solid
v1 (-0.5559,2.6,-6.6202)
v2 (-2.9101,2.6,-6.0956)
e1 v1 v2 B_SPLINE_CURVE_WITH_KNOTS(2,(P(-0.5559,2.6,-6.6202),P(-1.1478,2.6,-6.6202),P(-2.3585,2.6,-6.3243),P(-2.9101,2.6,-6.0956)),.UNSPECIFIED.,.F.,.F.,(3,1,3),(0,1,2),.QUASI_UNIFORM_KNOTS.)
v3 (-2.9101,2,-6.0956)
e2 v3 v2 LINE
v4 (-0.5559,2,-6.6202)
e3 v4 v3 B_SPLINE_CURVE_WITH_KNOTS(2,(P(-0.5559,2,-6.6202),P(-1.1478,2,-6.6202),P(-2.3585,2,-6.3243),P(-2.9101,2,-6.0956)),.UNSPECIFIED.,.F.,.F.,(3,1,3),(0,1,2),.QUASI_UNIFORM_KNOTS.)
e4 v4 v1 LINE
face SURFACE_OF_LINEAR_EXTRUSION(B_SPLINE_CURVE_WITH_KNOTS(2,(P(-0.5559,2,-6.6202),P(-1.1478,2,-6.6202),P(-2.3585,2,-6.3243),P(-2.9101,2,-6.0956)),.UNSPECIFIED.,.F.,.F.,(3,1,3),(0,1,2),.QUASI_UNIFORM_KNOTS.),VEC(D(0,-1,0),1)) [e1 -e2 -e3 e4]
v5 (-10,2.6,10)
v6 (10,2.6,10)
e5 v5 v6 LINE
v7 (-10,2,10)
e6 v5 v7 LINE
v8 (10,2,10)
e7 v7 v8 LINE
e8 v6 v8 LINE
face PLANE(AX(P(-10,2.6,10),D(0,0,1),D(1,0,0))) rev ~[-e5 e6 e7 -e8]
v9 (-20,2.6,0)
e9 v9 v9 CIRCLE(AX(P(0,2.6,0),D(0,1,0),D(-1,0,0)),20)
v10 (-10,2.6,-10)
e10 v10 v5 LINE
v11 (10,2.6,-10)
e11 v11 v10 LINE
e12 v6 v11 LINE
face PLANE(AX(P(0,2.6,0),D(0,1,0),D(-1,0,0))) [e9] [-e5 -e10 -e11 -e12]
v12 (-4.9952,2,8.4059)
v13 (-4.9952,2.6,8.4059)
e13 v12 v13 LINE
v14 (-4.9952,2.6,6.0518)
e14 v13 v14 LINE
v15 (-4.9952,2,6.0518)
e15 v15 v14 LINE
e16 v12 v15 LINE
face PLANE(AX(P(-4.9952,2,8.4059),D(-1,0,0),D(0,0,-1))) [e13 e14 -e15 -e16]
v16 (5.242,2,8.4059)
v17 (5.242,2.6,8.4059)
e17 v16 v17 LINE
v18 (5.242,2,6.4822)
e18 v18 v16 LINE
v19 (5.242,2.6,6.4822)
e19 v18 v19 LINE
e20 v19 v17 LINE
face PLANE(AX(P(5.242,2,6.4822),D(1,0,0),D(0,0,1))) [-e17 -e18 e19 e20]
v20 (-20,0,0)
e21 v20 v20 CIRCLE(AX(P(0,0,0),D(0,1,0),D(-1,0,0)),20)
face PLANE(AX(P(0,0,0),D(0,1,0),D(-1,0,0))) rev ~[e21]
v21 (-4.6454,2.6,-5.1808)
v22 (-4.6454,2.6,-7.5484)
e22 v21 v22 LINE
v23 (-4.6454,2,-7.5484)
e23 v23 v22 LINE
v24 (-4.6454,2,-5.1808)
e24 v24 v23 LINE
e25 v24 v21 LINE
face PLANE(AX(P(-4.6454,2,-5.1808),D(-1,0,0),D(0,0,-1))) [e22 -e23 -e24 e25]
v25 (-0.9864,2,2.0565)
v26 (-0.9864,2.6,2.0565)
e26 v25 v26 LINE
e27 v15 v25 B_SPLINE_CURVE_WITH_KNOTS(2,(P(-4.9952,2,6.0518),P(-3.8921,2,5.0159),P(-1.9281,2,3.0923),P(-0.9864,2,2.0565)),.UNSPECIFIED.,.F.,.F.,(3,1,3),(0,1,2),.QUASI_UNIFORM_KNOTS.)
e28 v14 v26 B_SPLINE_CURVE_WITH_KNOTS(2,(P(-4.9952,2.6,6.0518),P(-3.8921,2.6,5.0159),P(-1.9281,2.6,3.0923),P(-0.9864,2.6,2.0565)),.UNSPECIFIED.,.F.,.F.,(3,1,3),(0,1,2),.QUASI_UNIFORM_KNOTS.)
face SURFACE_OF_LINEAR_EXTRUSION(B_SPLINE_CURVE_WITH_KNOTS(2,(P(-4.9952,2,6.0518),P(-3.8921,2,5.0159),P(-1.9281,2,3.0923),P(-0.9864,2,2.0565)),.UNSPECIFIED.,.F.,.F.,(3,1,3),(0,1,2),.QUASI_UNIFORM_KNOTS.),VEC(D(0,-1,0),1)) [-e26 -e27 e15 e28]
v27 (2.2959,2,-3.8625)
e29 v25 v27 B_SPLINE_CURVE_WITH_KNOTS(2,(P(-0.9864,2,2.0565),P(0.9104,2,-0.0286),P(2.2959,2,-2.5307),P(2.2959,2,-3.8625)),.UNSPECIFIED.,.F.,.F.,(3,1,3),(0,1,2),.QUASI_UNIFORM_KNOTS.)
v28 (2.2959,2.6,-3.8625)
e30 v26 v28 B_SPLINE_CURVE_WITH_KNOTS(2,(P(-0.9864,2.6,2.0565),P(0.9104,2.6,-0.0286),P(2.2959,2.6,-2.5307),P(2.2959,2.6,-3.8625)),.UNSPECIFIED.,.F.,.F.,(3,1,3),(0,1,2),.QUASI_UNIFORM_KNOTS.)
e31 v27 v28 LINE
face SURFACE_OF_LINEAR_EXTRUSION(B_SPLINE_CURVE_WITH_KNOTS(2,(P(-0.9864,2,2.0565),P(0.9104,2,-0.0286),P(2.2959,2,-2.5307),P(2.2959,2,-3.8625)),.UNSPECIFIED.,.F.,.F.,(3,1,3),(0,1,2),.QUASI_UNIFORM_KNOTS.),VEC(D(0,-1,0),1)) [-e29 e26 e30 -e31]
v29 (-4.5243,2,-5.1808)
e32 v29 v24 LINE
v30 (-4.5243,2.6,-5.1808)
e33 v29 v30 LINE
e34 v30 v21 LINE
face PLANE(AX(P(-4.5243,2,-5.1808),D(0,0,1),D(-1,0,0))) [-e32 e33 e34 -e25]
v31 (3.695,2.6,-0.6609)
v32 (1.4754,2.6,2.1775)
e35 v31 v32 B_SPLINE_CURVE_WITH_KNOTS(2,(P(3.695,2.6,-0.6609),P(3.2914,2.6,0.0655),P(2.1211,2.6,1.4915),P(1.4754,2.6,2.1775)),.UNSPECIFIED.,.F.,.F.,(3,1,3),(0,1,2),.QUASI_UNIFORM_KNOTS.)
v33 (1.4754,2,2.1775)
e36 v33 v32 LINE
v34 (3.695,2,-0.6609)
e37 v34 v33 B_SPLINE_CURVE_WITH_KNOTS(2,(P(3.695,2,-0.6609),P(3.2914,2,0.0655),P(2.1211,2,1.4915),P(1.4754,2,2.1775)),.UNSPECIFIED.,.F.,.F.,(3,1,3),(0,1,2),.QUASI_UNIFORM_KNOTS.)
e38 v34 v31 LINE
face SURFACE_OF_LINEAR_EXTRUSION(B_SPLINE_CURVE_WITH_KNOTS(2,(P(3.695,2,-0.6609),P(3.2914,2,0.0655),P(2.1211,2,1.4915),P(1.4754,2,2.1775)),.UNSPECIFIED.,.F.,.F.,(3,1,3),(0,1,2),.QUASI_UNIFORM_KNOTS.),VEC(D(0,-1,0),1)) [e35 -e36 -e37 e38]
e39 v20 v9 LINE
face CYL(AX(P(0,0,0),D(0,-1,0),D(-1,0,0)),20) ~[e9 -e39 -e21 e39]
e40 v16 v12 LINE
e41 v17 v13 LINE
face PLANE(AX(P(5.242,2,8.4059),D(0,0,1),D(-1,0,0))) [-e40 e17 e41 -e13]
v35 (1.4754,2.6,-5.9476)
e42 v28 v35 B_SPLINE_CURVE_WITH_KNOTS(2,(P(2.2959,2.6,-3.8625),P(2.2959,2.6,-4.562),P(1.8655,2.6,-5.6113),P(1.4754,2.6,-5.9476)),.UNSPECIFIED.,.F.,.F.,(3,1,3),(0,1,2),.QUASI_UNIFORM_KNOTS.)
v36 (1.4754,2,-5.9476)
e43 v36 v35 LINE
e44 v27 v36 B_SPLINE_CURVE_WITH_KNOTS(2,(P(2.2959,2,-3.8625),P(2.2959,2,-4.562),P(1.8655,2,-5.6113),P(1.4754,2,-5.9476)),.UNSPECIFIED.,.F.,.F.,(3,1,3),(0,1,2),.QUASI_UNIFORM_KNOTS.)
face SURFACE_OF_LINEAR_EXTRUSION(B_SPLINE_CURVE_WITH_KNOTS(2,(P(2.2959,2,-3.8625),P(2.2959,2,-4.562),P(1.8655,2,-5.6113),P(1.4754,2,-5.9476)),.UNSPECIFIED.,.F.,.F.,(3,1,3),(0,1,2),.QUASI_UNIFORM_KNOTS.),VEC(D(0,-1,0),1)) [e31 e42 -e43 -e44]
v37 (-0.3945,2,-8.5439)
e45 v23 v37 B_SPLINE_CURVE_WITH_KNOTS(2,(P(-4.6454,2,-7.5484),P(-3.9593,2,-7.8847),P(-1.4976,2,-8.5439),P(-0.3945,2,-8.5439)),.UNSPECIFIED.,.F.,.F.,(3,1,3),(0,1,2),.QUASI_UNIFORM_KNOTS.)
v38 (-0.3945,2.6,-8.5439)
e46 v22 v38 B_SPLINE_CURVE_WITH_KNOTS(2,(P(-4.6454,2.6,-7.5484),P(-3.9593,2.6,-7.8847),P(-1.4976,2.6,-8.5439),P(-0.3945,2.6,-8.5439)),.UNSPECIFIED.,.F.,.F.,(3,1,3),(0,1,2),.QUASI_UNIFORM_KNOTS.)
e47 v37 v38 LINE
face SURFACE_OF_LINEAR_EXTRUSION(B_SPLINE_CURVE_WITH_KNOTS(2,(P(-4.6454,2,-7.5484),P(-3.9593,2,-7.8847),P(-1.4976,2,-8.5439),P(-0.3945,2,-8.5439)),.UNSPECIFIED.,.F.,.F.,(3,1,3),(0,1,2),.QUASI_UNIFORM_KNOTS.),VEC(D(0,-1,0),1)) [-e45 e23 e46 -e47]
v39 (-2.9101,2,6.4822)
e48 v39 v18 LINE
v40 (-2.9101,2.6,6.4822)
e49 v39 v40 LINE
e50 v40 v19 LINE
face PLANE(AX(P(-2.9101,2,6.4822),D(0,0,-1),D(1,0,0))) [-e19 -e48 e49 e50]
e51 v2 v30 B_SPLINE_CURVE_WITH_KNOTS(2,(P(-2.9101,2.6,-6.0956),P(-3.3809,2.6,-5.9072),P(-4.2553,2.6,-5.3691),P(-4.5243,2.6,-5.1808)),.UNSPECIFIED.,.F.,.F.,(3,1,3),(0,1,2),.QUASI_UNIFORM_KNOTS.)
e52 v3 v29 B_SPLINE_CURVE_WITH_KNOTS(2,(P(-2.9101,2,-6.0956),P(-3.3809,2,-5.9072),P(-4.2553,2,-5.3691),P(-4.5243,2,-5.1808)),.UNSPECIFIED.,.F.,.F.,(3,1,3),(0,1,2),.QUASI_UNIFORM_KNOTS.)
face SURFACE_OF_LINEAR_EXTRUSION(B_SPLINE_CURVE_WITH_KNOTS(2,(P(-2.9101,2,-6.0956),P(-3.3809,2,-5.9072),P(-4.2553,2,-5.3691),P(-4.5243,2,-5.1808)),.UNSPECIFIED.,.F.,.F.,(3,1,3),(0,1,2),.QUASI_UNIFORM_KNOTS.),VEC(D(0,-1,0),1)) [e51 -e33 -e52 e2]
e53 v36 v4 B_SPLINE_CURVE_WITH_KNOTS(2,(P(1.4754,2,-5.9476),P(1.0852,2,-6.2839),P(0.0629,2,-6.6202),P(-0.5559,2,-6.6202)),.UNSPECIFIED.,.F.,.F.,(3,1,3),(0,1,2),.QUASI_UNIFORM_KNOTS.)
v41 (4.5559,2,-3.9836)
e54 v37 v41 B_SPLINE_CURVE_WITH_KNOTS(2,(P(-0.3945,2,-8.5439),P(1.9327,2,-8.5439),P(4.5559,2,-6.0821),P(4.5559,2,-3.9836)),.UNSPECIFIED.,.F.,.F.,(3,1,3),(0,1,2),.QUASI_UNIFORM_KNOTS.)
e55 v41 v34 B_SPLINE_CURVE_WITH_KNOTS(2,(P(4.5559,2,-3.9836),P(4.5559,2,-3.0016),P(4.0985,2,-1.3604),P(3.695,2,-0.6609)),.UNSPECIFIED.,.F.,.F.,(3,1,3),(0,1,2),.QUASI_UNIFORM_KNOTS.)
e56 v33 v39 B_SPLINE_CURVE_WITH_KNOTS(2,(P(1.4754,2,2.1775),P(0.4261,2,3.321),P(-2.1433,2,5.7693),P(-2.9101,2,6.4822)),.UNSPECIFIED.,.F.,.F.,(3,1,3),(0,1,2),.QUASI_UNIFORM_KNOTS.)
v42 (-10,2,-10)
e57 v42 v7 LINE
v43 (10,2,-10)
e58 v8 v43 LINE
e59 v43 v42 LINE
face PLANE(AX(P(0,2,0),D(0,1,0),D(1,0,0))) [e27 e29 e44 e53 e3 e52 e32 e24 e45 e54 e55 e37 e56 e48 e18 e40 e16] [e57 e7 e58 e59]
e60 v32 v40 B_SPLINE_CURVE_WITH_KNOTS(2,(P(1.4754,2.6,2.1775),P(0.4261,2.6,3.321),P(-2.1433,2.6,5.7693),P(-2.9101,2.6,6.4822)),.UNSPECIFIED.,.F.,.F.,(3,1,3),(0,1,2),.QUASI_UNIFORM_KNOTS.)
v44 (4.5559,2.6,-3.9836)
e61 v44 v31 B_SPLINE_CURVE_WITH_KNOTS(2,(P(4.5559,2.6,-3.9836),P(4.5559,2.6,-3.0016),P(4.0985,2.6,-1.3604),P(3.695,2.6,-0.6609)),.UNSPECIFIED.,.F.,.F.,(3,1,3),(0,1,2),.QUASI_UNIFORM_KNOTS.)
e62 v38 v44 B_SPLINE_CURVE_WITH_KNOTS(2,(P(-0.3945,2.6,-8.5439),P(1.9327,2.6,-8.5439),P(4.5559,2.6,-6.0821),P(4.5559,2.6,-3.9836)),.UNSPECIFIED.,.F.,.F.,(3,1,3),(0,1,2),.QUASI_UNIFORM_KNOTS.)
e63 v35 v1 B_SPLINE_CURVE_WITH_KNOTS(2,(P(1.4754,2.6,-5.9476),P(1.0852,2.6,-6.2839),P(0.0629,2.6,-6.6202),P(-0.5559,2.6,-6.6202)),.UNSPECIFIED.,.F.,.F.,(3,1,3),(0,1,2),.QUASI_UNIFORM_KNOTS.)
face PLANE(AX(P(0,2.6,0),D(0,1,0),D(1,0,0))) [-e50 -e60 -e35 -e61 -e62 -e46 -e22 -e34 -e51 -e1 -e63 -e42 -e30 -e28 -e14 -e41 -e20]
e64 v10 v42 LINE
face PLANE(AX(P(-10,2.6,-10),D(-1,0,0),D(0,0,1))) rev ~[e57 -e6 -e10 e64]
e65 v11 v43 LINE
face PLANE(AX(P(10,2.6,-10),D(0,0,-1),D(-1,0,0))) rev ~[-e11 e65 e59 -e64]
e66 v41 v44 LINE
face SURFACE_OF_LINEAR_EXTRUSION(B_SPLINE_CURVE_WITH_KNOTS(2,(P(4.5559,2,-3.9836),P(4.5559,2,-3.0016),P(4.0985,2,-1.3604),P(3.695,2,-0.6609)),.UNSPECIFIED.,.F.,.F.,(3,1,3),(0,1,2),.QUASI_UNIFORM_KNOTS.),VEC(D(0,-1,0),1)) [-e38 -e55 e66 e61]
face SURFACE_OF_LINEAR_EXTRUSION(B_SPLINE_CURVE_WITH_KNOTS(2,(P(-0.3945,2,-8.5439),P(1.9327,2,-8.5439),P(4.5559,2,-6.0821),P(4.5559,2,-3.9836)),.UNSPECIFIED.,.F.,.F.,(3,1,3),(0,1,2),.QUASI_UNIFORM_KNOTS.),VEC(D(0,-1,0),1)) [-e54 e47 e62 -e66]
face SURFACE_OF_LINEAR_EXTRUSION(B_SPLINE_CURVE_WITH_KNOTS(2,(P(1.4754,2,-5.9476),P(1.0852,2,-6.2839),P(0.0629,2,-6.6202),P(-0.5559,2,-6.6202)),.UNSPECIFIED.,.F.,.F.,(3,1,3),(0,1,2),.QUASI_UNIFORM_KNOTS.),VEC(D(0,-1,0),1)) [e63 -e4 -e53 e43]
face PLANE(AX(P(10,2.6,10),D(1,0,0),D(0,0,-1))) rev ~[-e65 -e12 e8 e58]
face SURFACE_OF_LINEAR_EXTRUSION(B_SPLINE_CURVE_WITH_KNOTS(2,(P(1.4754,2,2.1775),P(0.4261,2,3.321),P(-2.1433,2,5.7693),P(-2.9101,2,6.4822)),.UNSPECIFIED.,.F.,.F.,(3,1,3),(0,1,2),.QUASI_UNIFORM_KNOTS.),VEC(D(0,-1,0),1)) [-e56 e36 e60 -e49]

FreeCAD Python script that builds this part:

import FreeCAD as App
import Part
import Sketcher
Q = App.Units.Quantity


def add_polygon(sketch, points):
    """Adds a closed chain of lines whose ends are joined by coincident constraints."""
    first, n = sketch.GeometryCount, len(points)
    for a, b in zip(points, points[1:] + points[:1]):
        sketch.addGeometry(Part.LineSegment(App.Vector(*a, 0), App.Vector(*b, 0)), False)
    for i in range(n):
        sketch.addConstraint(Sketcher.Constraint("Coincident", first + i, 2, first + (i + 1) % n, 1))

doc = App.newDocument("Part")
params = doc.addObject("Spreadsheet::Sheet", "Params")
for row, (alias, value) in enumerate([
    ("sketch1_diameter", "40 mm"),
    ("pad1_length", "2.6 mm"),
    ("sketch2_width", "20 mm"),
    ("pocket1_length", "0.6 mm"),
    ("pad2_length", "0.6 mm"),
], start=1):
    params.set(f"A{row}", alias)
    params.set(f"B{row}", "=" + value)
    params.setAlias(f"B{row}", alias)

body = doc.addObject("PartDesign::Body", "Body")

# Sketch on XZ plane
sketch1 = body.newObject("Sketcher::SketchObject", "Sketch")
sketch1.AttachmentSupport = (doc.getObject("XZ_Plane"), [""])
sketch1.MapMode = "FlatFace"
sketch1.addGeometry(Part.Circle(App.Vector(0, 0, 0), App.Vector(0, 0, 1), 20), False)
sketch1.addConstraint(Sketcher.Constraint("Coincident", 0, 3, -1, 1))
sketch1.addConstraint(Sketcher.Constraint("Diameter", 0, Q("40 mm")))
sketch1.setExpression("Constraints[1]", "Params.sketch1_diameter")
pad1 = body.newObject("PartDesign::Pad", "Pad")
pad1.Profile = sketch1
pad1.setExpression("Length", "Params.pad1_length")
pad1.Reversed = True

# Sketch on XZ plane
sketch2 = body.newObject("Sketcher::SketchObject", "Sketch001")
sketch2.AttachmentSupport = (doc.getObject("XZ_Plane"), [""])
sketch2.MapMode = "FlatFace"
sketch2.AttachmentOffset = App.Placement(App.Vector(0, 0, -2.6), App.Rotation())
add_polygon(sketch2, [(-10, -10), (-10, 10), (10, 10), (10, -10)])  # lines 0-3
sketch2.addConstraint(Sketcher.Constraint("Vertical", 0))
sketch2.addConstraint(Sketcher.Constraint("Horizontal", 1))
sketch2.addConstraint(Sketcher.Constraint("Vertical", 2))
sketch2.addConstraint(Sketcher.Constraint("Horizontal", 3))
sketch2.addConstraint(Sketcher.Constraint("Symmetric", 0, 2, 2, 2, -1, 1))
sketch2.addConstraint(Sketcher.Constraint("Equal", 3, 0))
sketch2.addConstraint(Sketcher.Constraint("DistanceX", 1, 1, 1, 2, Q("20 mm")))
sketch2.setExpression("Constraints[10]", "Params.sketch2_width")
pocket1 = body.newObject("PartDesign::Pocket", "Pocket")
pocket1.Profile = sketch2
pocket1.setExpression("Length", "Params.pocket1_length")
pocket1.Reversed = True

# Sketch on XZ plane
sketch3 = body.newObject("Sketcher::SketchObject", "Sketch002")
sketch3.AttachmentSupport = (doc.getObject("XZ_Plane"), [""])
sketch3.MapMode = "FlatFace"
sketch3.AttachmentOffset = App.Placement(App.Vector(0, 0, -2), App.Rotation())
sketch3.addGeometry(Part.LineSegment(App.Vector(-4.9952, 8.4059, 0), App.Vector(5.242, 8.4059, 0)), False)
sketch3.addGeometry(Part.LineSegment(App.Vector(5.242, 8.4059, 0), App.Vector(5.242, 6.4822, 0)), False)
sketch3.addGeometry(Part.LineSegment(App.Vector(5.242, 6.4822, 0), App.Vector(-2.9101, 6.4822, 0)), False)
sketch3.addGeometry(Part.BSplineCurve([App.Vector(1.4754, 2.1775, 0), App.Vector(0.4261, 3.321, 0), App.Vector(-2.1433, 5.7693, 0), App.Vector(-2.9101, 6.4822, 0)], [3, 1, 3], [0, 1, 2], False, 2, [1, 1, 1, 1], False), False)
sketch3.addGeometry(Part.BSplineCurve([App.Vector(3.695, -0.6609, 0), App.Vector(3.2914, 0.0655, 0), App.Vector(2.1211, 1.4915, 0), App.Vector(1.4754, 2.1775, 0)], [3, 1, 3], [0, 1, 2], False, 2, [1, 1, 1, 1], False), False)
sketch3.addGeometry(Part.BSplineCurve([App.Vector(4.5559, -3.9836, 0), App.Vector(4.5559, -3.0016, 0), App.Vector(4.0985, -1.3604, 0), App.Vector(3.695, -0.6609, 0)], [3, 1, 3], [0, 1, 2], False, 2, [1, 1, 1, 1], False), False)
sketch3.addGeometry(Part.BSplineCurve([App.Vector(-0.3945, -8.5439, 0), App.Vector(1.9327, -8.5439, 0), App.Vector(4.5559, -6.0821, 0), App.Vector(4.5559, -3.9836, 0)], [3, 1, 3], [0, 1, 2], False, 2, [1, 1, 1, 1], False), False)
sketch3.addGeometry(Part.BSplineCurve([App.Vector(-4.6454, -7.5484, 0), App.Vector(-3.9593, -7.8847, 0), App.Vector(-1.4976, -8.5439, 0), App.Vector(-0.3945, -8.5439, 0)], [3, 1, 3], [0, 1, 2], False, 2, [1, 1, 1, 1], False), False)
sketch3.addGeometry(Part.LineSegment(App.Vector(-4.6454, -7.5484, 0), App.Vector(-4.6454, -5.1808, 0)), False)
sketch3.addGeometry(Part.LineSegment(App.Vector(-4.6454, -5.1808, 0), App.Vector(-4.5243, -5.1808, 0)), False)
sketch3.addGeometry(Part.BSplineCurve([App.Vector(-2.9101, -6.0956, 0), App.Vector(-3.3809, -5.9072, 0), App.Vector(-4.2553, -5.3691, 0), App.Vector(-4.5243, -5.1808, 0)], [3, 1, 3], [0, 1, 2], False, 2, [1, 1, 1, 1], False), False)
sketch3.addGeometry(Part.BSplineCurve([App.Vector(-0.5559, -6.6202, 0), App.Vector(-1.1478, -6.6202, 0), App.Vector(-2.3585, -6.3243, 0), App.Vector(-2.9101, -6.0956, 0)], [3, 1, 3], [0, 1, 2], False, 2, [1, 1, 1, 1], False), False)
sketch3.addGeometry(Part.BSplineCurve([App.Vector(1.4754, -5.9476, 0), App.Vector(1.0852, -6.2839, 0), App.Vector(0.0629, -6.6202, 0), App.Vector(-0.5559, -6.6202, 0)], [3, 1, 3], [0, 1, 2], False, 2, [1, 1, 1, 1], False), False)
sketch3.addGeometry(Part.BSplineCurve([App.Vector(2.2959, -3.8625, 0), App.Vector(2.2959, -4.562, 0), App.Vector(1.8655, -5.6113, 0), App.Vector(1.4754, -5.9476, 0)], [3, 1, 3], [0, 1, 2], False, 2, [1, 1, 1, 1], False), False)
sketch3.addGeometry(Part.BSplineCurve([App.Vector(-0.9864, 2.0565, 0), App.Vector(0.9104, -0.0286, 0), App.Vector(2.2959, -2.5307, 0), App.Vector(2.2959, -3.8625, 0)], [3, 1, 3], [0, 1, 2], False, 2, [1, 1, 1, 1], False), False)
sketch3.addGeometry(Part.BSplineCurve([App.Vector(-4.9952, 6.0518, 0), App.Vector(-3.8921, 5.0159, 0), App.Vector(-1.9281, 3.0923, 0), App.Vector(-0.9864, 2.0565, 0)], [3, 1, 3], [0, 1, 2], False, 2, [1, 1, 1, 1], False), False)
sketch3.addGeometry(Part.LineSegment(App.Vector(-4.9952, 6.0518, 0), App.Vector(-4.9952, 8.4059, 0)), False)
sketch3.addConstraint(Sketcher.Constraint("Block", 3))
sketch3.addConstraint(Sketcher.Constraint("Block", 4))
sketch3.addConstraint(Sketcher.Constraint("Block", 5))
sketch3.addConstraint(Sketcher.Constraint("Block", 6))
sketch3.addConstraint(Sketcher.Constraint("Block", 7))
sketch3.addConstraint(Sketcher.Constraint("Block", 10))
sketch3.addConstraint(Sketcher.Constraint("Block", 11))
sketch3.addConstraint(Sketcher.Constraint("Block", 12))
sketch3.addConstraint(Sketcher.Constraint("Block", 13))
sketch3.addConstraint(Sketcher.Constraint("Block", 14))
sketch3.addConstraint(Sketcher.Constraint("Block", 15))
sketch3.addConstraint(Sketcher.Constraint("Coincident", 0, 2, 1, 1))
sketch3.addConstraint(Sketcher.Constraint("Coincident", 1, 2, 2, 1))
sketch3.addConstraint(Sketcher.Constraint("Coincident", 2, 2, 3, 2))
sketch3.addConstraint(Sketcher.Constraint("Coincident", 7, 1, 8, 1))
sketch3.addConstraint(Sketcher.Constraint("Coincident", 8, 2, 9, 1))
sketch3.addConstraint(Sketcher.Constraint("Coincident", 9, 2, 10, 2))
sketch3.addConstraint(Sketcher.Constraint("Coincident", 15, 1, 16, 1))
sketch3.addConstraint(Sketcher.Constraint("Coincident", 16, 2, 0, 1))
sketch3.addConstraint(Sketcher.Constraint("Horizontal", 0))
sketch3.addConstraint(Sketcher.Constraint("Vertical", 1))
sketch3.addConstraint(Sketcher.Constraint("Horizontal", 2))
sketch3.addConstraint(Sketcher.Constraint("Vertical", 8))
sketch3.addConstraint(Sketcher.Constraint("Horizontal", 9))
sketch3.addConstraint(Sketcher.Constraint("Vertical", 16))
sketch3.addConstraint(Sketcher.Constraint("DistanceX", 2, 2, 2, 1, Q("8.152 mm")))
sketch3.addConstraint(Sketcher.Constraint("DistanceY", 16, 1, 16, 2, Q("2.354 mm")))
pad2 = body.newObject("PartDesign::Pad", "Pad001")
pad2.Profile = sketch3
pad2.setExpression("Length", "Params.pad2_length")
pad2.Reversed = True

doc.recompute()
